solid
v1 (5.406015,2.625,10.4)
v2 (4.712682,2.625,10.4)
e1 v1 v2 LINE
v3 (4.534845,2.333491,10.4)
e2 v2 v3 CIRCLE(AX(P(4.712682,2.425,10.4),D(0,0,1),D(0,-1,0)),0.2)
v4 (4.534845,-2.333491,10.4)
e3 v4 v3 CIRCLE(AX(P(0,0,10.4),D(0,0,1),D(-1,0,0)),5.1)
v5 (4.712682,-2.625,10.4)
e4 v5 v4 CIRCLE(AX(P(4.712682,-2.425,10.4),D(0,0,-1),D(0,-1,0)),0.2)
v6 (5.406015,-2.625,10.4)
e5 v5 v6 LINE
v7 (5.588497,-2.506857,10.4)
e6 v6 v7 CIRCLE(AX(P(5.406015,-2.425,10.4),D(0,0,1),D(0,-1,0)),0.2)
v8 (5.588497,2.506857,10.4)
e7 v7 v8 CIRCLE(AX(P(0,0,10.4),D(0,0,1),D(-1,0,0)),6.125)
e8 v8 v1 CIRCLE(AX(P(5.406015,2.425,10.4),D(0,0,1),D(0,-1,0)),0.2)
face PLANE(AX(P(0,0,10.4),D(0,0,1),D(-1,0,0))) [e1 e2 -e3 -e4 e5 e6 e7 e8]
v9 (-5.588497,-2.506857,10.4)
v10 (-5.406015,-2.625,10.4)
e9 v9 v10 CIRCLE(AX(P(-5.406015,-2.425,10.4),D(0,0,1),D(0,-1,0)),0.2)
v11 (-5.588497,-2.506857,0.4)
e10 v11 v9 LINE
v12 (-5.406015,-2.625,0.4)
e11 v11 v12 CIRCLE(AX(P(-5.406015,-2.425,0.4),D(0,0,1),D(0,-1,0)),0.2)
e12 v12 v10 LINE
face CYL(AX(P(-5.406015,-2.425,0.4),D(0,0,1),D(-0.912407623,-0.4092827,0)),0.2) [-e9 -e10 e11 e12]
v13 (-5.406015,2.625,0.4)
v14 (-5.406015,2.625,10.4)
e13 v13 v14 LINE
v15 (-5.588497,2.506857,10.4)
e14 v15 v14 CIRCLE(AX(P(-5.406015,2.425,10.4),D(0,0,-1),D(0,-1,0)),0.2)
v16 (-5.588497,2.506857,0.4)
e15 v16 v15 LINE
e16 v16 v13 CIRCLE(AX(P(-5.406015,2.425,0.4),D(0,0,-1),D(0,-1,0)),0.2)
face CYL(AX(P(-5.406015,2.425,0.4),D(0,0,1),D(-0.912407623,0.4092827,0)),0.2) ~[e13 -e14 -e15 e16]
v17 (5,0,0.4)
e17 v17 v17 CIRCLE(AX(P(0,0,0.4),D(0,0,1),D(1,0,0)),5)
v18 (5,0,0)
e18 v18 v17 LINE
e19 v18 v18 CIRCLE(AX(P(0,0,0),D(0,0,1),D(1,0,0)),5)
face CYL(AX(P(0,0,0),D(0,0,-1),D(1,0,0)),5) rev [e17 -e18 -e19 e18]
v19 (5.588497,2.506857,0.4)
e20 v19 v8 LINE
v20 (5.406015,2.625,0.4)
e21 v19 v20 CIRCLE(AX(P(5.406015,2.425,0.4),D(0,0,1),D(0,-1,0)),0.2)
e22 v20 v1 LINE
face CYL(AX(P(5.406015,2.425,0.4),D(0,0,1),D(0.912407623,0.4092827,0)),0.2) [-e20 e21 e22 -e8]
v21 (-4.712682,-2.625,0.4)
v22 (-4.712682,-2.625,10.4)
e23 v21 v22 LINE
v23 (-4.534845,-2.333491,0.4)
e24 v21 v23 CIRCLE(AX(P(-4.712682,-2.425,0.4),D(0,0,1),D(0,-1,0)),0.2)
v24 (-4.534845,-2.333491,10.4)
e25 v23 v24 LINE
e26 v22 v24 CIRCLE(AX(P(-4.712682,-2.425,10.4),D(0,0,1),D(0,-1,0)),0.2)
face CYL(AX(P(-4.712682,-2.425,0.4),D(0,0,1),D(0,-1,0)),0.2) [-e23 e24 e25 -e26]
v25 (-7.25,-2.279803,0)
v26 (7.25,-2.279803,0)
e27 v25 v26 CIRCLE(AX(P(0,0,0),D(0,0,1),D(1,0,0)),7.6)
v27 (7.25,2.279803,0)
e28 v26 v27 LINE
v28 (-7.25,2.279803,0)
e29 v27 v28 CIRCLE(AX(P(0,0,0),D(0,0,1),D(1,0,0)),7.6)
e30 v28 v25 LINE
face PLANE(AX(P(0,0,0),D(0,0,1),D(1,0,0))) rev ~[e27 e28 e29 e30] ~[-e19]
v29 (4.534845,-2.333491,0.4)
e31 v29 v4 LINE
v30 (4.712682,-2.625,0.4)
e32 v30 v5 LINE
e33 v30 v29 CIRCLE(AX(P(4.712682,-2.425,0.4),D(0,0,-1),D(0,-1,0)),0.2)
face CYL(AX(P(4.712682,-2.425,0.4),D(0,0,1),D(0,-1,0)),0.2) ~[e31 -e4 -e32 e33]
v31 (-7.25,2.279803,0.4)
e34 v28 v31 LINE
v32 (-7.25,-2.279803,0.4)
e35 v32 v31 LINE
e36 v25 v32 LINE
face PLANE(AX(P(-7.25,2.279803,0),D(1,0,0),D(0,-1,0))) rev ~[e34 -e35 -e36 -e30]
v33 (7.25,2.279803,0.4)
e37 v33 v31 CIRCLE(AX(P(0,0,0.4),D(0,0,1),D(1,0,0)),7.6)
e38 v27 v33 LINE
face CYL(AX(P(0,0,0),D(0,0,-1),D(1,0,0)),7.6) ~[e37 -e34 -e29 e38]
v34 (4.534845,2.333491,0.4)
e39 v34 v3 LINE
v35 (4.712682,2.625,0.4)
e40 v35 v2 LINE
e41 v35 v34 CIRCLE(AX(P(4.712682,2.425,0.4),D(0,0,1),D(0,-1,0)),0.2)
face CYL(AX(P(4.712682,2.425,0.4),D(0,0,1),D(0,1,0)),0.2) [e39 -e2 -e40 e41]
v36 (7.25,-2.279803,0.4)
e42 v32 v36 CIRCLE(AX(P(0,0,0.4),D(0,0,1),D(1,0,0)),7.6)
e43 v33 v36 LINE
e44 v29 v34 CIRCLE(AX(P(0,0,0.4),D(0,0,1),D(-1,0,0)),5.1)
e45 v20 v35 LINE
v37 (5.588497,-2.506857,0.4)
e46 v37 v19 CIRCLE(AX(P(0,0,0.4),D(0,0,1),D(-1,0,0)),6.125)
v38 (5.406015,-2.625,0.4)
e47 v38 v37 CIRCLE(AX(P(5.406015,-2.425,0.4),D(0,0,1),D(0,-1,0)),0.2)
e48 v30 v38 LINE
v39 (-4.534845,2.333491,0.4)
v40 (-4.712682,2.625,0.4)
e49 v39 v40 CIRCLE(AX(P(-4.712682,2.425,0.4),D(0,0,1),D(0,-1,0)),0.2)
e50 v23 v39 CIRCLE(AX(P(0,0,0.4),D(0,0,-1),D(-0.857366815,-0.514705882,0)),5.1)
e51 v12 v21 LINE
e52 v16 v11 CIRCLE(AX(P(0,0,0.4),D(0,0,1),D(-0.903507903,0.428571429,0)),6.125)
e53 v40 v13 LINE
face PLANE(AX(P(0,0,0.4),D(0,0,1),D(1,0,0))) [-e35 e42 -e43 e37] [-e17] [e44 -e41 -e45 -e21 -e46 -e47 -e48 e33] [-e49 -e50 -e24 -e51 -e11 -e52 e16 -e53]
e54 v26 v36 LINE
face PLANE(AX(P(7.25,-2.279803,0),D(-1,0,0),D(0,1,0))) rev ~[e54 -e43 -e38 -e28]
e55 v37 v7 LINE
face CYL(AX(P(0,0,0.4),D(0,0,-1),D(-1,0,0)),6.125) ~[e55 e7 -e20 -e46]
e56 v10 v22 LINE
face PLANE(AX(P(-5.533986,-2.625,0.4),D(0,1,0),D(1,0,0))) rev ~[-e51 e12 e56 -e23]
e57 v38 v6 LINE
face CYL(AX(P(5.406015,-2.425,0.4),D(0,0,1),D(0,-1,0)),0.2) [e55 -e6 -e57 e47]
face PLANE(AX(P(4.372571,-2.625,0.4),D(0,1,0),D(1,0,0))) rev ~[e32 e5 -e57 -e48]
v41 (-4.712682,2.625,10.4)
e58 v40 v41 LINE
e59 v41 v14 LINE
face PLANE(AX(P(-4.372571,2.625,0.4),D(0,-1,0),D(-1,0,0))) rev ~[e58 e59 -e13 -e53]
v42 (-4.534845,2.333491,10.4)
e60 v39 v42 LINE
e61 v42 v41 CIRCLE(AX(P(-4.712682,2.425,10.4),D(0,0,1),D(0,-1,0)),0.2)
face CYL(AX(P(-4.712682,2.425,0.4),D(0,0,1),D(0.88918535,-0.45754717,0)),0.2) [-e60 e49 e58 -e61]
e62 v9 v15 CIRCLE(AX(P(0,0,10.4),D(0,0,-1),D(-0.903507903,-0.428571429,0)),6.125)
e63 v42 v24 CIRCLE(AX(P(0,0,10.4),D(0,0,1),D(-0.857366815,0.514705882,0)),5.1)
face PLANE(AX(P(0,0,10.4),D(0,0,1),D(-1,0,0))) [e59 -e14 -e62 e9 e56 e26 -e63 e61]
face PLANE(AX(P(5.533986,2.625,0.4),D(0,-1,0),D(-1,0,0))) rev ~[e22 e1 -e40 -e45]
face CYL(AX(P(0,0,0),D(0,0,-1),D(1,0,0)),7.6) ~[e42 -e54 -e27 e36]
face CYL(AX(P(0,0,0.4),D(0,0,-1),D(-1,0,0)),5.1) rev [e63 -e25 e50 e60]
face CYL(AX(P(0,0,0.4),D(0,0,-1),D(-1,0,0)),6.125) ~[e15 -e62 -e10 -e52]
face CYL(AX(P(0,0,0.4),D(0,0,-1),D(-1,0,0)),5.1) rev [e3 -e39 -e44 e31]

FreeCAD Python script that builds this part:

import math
import FreeCAD as App
import Part
import Sketcher
Q = App.Units.Quantity


def edges_at(feature, points):
    """Names of the edges that pass closest to the given points."""
    edges = feature.Shape.Edges
    near = lambda p: min(range(len(edges)), key=lambda i: edges[i].distToShape(Part.Vertex(*p))[0])
    return sorted({f"Edge{near(p) + 1}" for p in points})

doc = App.newDocument("Part")
body = doc.addObject("PartDesign::Body", "Body")

# Sketch on XY plane
sketch1 = body.newObject("Sketcher::SketchObject", "Sketch")
sketch1.AttachmentSupport = (doc.getObject("XY_Plane"), [""])
sketch1.MapMode = "FlatFace"
sketch1.addGeometry([
    Part.Circle(App.Vector(0, 0, 0), App.Vector(0, 0, 1), 8),
    Part.Circle(App.Vector(0, 0, 0), App.Vector(0, 0, 1), 5),
], False)
sketch1.addConstraint([
    Sketcher.Constraint("Coincident", 0, 3, -1, 1),
    Sketcher.Constraint("Coincident", 1, 3, -1, 1),
    Sketcher.Constraint("Diameter", 1, Q("10 mm")),
    Sketcher.Constraint("Diameter", 0, Q("15.2 mm")),
])
pad1 = body.newObject("PartDesign::Pad", "Pad")
pad1.Profile = sketch1
pad1.Length = 0.4

# Sketch on XY plane
sketch2 = body.newObject("Sketcher::SketchObject", "Sketch001")
sketch2.AttachmentSupport = (doc.getObject("XY_Plane"), [""])
sketch2.MapMode = "FlatFace"
sketch2.AttachmentOffset = App.Placement(App.Vector(0, 0, 0.4), App.Rotation())
sketch2.addGeometry([
    Part.ArcOfCircle(Part.Circle(App.Vector(0, 0, 0), App.Vector(0, 0, 1), 6.1), math.radians(155), math.radians(205)),  # 0
    Part.LineSegment(App.Vector(-5.5, -2.6, 0), App.Vector(-4.4, -2.6, 0)),  # 1
    Part.ArcOfCircle(Part.Circle(App.Vector(0, 0, 0), App.Vector(0, 0, 1), 5.1), math.radians(149), math.radians(211)),  # 2
    Part.LineSegment(App.Vector(-4.4, 2.6, 0), App.Vector(-5.5, 2.6, 0)),  # 3
    Part.LineSegment(App.Vector(4.4, -2.6, 0), App.Vector(5.5, -2.6, 0)),  # 4
    Part.ArcOfCircle(Part.Circle(App.Vector(0, 0, 0), App.Vector(0, 0, 1), 6.1), math.radians(-25), math.radians(25)),  # 5
    Part.LineSegment(App.Vector(5.5, 2.6, 0), App.Vector(4.4, 2.6, 0)),  # 6
    Part.ArcOfCircle(Part.Circle(App.Vector(0, 0, 0), App.Vector(0, 0, 1), 5.1), math.radians(-31), math.radians(31)),  # 7
], False)
sketch2.addConstraint([
    Sketcher.Constraint("Coincident", 0, 2, 1, 1),
    Sketcher.Constraint("Coincident", 1, 2, 2, 2),
    Sketcher.Constraint("Coincident", 2, 1, 3, 1),
    Sketcher.Constraint("Coincident", 3, 2, 0, 1),
    Sketcher.Constraint("Coincident", 4, 2, 5, 1),
    Sketcher.Constraint("Coincident", 5, 2, 6, 1),
    Sketcher.Constraint("Coincident", 6, 2, 7, 2),
    Sketcher.Constraint("Coincident", 7, 1, 4, 1),
    Sketcher.Constraint("Horizontal", 1),
    Sketcher.Constraint("Horizontal", 3),
    Sketcher.Constraint("Horizontal", 4),
    Sketcher.Constraint("Horizontal", 6),
    Sketcher.Constraint("Coincident", 0, 3, -1, 1),
    Sketcher.Constraint("Coincident", 2, 3, -1, 1),
    Sketcher.Constraint("Coincident", 5, 3, -1, 1),
    Sketcher.Constraint("Coincident", 7, 3, -1, 1),
    Sketcher.Constraint("Equal", 0, 5),
    Sketcher.Constraint("Equal", 2, 7),
    Sketcher.Constraint("Horizontal", 1, 2, 4, 2),
    Sketcher.Constraint("Horizontal", 3, 2, 5, 2),
    Sketcher.Constraint("Vertical", 1, 2, 2, 1),
    Sketcher.Constraint("Radius", 2, Q("5.1 mm")),
    Sketcher.Constraint("Radius", 0, Q("6.125 mm")),
    Sketcher.Constraint("DistanceY", 1, 2, 2, 1, Q("5.25 mm")),
])
pad2 = body.newObject("PartDesign::Pad", "Pad001")
pad2.Profile = sketch2
pad2.Length = 10
doc.recompute()

fillet = body.newObject("PartDesign::Fillet", "Fillet")
fillet.Base = (pad2, edges_at(pad2, [
    (4.373, -2.625, 5.4),
    (4.373, 2.625, 5.4),
    (5.534, 2.625, 5.4),
    (5.534, -2.625, 5.4),
    (-4.373, -2.625, 5.4),
    (-4.373, 2.625, 5.4),
    (-5.534, 2.625, 5.4),
    (-5.534, -2.625, 5.4),
]))
fillet.Radius = 0.2

# Sketch on XY plane
sketch3 = body.newObject("Sketcher::SketchObject", "Sketch002")
sketch3.AttachmentSupport = (doc.getObject("XY_Plane"), [""])
sketch3.MapMode = "FlatFace"
sketch3.addGeometry([
    Part.ArcOfCircle(Part.Circle(App.Vector(0, 0, 0), App.Vector(0, 0, 1), 7.6), math.radians(-17), math.radians(17)),
    Part.LineSegment(App.Vector(7.2, -2.3, 0), App.Vector(7.2, 2.3, 0)),
    Part.LineSegment(App.Vector(-7.2, 2.3, 0), App.Vector(-7.2, -2.3, 0)),
    Part.ArcOfCircle(Part.Circle(App.Vector(0, 0, 0), App.Vector(0, 0, 1), 7.6), math.radians(163), math.radians(197)),
], False)
sketch3.addConstraint([
    Sketcher.Constraint("Coincident", 0, 1, 1, 1),
    Sketcher.Constraint("Coincident", 1, 2, 0, 2),
    Sketcher.Constraint("Coincident", 2, 1, 3, 1),
    Sketcher.Constraint("Coincident", 3, 2, 2, 2),
    Sketcher.Constraint("Vertical", 1),
    Sketcher.Constraint("Vertical", 2),
    Sketcher.Constraint("Coincident", 0, 3, -1, 1),
    Sketcher.Constraint("Coincident", 3, 3, -1, 1),
    Sketcher.Constraint("Equal", 0, 3),
    Sketcher.Constraint("Horizontal", 1, 2, 2, 1),
    Sketcher.Constraint("Radius", 0, Q("7.6 mm")),
    Sketcher.Constraint("DistanceX", 2, 1, 1, 2, Q("14.5 mm")),
])
pocket1 = body.newObject("PartDesign::Pocket", "Pocket")
pocket1.Profile = sketch3
pocket1.Length = 12
pocket1.Reversed = True

doc.recompute()
